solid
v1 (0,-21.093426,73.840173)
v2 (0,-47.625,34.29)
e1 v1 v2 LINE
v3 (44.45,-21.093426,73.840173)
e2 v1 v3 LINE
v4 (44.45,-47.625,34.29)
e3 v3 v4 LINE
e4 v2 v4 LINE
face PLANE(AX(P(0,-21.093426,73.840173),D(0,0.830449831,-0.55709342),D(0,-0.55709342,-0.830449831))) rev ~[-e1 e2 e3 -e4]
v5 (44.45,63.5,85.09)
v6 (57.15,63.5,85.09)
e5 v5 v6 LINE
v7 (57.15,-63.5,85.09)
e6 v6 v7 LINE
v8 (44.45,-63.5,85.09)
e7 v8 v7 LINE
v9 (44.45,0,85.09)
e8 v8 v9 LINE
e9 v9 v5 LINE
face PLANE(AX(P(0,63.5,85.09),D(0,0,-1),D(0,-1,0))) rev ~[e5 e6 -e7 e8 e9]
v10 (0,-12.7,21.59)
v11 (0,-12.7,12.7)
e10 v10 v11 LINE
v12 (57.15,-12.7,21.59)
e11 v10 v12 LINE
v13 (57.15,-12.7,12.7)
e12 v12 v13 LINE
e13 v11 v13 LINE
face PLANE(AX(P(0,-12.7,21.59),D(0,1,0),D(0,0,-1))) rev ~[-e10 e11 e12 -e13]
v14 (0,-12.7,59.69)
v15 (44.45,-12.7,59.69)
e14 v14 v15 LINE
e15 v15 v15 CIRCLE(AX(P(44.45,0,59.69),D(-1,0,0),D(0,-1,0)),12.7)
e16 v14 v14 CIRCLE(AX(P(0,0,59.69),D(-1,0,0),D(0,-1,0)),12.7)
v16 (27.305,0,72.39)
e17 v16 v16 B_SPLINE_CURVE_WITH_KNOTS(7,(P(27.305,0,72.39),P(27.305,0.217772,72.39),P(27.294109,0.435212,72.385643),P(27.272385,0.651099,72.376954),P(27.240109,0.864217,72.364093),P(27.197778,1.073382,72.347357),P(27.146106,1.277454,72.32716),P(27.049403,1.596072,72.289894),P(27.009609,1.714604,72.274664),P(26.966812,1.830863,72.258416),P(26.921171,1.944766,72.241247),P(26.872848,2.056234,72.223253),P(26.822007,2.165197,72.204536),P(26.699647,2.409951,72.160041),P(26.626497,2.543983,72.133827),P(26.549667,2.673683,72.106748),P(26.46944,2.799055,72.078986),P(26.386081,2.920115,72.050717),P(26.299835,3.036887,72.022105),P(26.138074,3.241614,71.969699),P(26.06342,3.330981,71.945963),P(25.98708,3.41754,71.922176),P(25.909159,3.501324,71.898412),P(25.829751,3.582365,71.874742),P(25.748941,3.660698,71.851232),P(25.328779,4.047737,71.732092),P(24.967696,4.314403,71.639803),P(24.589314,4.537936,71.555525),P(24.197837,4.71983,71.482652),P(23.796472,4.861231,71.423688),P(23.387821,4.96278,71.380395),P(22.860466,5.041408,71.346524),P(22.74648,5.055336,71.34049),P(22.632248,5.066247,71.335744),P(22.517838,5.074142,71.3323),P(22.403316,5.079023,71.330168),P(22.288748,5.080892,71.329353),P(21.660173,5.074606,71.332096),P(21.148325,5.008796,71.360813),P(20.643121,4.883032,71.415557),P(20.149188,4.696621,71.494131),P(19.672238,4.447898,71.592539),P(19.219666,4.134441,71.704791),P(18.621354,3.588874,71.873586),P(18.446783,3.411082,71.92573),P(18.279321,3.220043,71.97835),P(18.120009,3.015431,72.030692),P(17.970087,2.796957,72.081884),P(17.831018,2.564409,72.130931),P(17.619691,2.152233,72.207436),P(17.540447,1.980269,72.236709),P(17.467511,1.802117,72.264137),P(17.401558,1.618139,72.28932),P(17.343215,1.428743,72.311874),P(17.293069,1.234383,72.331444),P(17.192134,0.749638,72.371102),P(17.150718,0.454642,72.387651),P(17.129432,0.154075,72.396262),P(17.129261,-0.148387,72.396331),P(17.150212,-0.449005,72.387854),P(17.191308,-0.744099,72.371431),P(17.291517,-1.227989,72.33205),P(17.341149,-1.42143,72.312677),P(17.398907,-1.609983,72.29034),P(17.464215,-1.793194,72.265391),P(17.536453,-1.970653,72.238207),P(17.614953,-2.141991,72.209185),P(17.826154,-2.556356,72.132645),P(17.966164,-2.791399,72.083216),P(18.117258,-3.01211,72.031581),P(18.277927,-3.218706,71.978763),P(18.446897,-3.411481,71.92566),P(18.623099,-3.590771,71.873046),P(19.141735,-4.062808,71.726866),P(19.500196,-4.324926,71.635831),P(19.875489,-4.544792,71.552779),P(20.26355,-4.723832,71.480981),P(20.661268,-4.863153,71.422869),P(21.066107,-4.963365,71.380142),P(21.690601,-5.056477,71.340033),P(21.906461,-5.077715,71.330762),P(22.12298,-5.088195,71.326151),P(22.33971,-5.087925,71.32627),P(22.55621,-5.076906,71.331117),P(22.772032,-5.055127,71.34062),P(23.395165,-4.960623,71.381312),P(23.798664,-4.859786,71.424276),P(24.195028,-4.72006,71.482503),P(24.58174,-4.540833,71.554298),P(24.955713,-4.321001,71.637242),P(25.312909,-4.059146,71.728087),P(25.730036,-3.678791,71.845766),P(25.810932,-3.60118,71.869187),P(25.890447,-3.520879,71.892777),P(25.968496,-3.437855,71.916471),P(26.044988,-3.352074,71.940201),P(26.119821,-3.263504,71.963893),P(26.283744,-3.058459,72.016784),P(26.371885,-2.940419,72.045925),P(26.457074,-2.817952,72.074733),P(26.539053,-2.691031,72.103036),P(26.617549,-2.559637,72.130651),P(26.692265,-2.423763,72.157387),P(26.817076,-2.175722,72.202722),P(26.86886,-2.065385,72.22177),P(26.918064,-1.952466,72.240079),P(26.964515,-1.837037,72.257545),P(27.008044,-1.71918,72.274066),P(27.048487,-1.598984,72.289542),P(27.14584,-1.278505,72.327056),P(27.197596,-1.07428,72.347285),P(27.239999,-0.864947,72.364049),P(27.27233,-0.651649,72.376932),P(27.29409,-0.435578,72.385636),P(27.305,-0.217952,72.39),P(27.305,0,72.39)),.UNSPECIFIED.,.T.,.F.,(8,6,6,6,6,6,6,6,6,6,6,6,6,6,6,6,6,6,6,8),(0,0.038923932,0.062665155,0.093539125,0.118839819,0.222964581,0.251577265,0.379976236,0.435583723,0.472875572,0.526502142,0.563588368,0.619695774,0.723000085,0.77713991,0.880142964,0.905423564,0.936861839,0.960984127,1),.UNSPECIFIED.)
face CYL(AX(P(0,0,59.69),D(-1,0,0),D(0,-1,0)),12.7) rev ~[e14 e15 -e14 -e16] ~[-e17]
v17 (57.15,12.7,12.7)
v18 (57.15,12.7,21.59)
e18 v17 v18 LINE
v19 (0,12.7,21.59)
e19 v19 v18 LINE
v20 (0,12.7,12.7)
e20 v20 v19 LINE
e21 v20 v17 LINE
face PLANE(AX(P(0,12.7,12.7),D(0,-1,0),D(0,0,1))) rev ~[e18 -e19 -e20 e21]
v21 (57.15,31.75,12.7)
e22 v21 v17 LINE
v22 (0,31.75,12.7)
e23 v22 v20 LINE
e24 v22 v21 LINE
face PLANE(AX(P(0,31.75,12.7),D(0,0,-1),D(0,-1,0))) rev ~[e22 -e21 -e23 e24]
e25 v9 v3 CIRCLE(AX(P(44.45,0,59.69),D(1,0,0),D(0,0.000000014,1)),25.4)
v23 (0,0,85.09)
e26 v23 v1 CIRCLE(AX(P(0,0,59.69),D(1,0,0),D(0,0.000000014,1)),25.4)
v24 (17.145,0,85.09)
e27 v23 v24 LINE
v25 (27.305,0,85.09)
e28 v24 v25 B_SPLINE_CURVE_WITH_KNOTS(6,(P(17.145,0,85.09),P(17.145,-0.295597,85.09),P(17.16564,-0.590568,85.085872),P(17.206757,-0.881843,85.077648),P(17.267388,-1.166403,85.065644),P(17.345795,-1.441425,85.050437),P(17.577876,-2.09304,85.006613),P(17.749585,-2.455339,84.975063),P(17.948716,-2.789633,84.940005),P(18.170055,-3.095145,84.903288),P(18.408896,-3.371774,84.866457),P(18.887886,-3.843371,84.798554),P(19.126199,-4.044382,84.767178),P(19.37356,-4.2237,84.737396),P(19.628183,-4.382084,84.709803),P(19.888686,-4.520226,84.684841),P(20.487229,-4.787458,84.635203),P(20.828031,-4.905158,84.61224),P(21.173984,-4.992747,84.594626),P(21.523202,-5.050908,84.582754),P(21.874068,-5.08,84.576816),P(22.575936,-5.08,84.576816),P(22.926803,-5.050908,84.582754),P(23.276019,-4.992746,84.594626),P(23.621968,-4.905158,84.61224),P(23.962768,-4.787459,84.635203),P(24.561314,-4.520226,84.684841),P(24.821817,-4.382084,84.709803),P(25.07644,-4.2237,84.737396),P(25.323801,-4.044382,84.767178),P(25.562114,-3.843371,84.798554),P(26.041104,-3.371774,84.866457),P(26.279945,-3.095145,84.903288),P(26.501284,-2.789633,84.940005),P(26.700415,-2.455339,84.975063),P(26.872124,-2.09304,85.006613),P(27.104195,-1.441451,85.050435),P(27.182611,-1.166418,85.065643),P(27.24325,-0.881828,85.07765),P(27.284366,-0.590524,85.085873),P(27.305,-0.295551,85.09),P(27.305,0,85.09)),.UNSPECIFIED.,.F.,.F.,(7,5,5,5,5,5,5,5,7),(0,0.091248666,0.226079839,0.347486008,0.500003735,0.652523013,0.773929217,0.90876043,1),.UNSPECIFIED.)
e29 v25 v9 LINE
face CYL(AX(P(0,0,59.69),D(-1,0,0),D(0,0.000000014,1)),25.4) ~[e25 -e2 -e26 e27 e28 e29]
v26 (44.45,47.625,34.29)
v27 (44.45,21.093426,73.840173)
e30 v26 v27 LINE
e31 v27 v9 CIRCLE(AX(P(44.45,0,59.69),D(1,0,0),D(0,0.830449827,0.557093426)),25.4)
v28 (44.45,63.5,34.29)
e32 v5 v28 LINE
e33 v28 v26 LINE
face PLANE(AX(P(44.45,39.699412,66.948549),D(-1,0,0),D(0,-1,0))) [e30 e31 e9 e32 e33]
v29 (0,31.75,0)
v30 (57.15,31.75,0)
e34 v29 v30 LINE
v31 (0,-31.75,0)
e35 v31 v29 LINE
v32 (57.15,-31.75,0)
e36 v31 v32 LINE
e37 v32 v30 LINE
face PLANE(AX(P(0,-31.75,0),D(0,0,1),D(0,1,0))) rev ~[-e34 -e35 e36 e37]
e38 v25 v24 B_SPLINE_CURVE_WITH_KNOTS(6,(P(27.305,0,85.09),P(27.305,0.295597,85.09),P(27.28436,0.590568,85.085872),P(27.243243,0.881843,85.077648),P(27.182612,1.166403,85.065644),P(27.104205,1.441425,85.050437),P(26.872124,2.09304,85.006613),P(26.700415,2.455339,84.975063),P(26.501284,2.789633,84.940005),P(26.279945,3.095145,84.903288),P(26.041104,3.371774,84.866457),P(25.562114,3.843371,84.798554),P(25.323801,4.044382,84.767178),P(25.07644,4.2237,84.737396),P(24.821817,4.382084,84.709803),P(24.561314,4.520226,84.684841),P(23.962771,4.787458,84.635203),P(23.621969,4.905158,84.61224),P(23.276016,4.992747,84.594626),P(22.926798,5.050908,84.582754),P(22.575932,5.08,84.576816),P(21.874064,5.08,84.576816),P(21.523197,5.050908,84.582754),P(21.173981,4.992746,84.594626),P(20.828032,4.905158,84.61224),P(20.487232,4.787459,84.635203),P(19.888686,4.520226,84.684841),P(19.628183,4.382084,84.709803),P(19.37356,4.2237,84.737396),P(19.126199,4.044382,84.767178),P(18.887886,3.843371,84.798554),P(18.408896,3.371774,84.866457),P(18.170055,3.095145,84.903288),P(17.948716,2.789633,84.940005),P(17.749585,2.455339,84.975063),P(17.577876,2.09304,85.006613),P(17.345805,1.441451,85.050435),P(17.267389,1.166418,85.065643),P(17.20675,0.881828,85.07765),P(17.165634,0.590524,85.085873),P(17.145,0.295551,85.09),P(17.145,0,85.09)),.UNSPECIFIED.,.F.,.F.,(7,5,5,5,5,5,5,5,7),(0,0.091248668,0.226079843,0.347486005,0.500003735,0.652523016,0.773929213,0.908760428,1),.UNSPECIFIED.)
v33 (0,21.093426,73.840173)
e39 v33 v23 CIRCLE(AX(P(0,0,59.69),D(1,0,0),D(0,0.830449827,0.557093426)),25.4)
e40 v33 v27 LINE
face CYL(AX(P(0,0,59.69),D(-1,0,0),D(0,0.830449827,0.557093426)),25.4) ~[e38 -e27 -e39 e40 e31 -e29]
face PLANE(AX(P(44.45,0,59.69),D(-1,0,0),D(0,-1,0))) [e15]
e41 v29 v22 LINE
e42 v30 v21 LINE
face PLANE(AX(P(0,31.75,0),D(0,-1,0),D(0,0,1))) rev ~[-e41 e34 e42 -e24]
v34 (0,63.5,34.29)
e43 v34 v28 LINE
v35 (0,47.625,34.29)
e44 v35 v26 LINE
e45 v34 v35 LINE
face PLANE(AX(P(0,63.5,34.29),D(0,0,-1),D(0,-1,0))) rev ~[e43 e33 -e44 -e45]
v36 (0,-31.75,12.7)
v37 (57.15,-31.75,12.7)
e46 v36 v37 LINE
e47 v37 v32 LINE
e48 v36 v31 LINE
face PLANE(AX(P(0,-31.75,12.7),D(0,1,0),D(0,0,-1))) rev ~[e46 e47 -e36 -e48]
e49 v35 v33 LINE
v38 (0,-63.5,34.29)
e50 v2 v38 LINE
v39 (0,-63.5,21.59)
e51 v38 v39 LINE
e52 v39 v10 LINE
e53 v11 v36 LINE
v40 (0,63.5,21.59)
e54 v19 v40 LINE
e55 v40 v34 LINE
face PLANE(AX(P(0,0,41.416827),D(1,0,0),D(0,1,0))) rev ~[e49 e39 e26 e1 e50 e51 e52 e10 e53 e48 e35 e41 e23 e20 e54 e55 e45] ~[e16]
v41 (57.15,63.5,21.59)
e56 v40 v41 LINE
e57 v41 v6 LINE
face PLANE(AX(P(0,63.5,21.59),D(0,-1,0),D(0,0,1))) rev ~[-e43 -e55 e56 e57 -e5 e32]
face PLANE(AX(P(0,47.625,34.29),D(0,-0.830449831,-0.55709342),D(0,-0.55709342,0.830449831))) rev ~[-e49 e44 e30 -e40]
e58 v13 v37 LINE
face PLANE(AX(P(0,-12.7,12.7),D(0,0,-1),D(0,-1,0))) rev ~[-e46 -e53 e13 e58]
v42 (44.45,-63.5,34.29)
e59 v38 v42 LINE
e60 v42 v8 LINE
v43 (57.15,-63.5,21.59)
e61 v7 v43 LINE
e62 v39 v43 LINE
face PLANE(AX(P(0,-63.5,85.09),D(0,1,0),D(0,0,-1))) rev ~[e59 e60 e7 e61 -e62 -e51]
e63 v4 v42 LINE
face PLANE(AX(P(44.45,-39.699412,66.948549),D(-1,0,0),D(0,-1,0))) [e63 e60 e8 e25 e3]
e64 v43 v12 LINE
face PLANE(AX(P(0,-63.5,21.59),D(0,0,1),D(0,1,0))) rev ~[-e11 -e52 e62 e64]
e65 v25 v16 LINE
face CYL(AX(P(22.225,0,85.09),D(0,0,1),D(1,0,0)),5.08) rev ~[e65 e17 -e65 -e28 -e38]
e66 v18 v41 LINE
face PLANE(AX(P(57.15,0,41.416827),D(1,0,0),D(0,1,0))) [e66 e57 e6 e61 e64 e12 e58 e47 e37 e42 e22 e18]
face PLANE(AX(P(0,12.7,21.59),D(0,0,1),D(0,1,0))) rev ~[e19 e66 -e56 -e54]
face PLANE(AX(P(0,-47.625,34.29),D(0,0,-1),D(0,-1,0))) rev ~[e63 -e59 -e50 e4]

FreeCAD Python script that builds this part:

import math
import FreeCAD as App
import Part
import Sketcher
from FreeCAD import Vector
Q = App.Units.Quantity


def add_polygon(sketch, points):
    """Adds a closed chain of lines whose ends are joined by coincident constraints."""
    first, n = sketch.GeometryCount, len(points)
    for a, b in zip(points, points[1:] + points[:1]):
        sketch.addGeometry(Part.LineSegment(App.Vector(*a, 0), App.Vector(*b, 0)), False)
    for i in range(n):
        sketch.addConstraint(Sketcher.Constraint("Coincident", first + i, 2, first + (i + 1) % n, 1))

doc = App.newDocument("Part")
body = doc.addObject("PartDesign::Body", "Body")

# Sketch on YZ plane
sketch1 = body.newObject("Sketcher::SketchObject", "Sketch")
sketch1.AttachmentSupport = (doc.getObject("YZ_Plane"), [""])
sketch1.MapMode = "FlatFace"
add_polygon(sketch1, [(-31.75, 12.7), (-31.75, 0), (31.75, 0), (31.75, 12.7), (12.7, 12.7), (12.7, 21.59), (63.5, 21.59), (63.5, 85.09), (-63.5, 85.09), (-63.5, 21.59), (-12.7, 21.59), (-12.7, 12.7)])  # lines 0-11
sketch1.addConstraint([
    Sketcher.Constraint("Vertical", 0),
    Sketcher.Constraint("Horizontal", 1),
    Sketcher.Constraint("Vertical", 2),
    Sketcher.Constraint("Horizontal", 3),
    Sketcher.Constraint("Vertical", 4),
    Sketcher.Constraint("Horizontal", 5),
    Sketcher.Constraint("Vertical", 6),
    Sketcher.Constraint("Horizontal", 7),
    Sketcher.Constraint("Vertical", 8),
    Sketcher.Constraint("Horizontal", 9),
    Sketcher.Constraint("Vertical", 10),
    Sketcher.Constraint("Horizontal", 11),
    Sketcher.Constraint("Symmetric", 0, 2, 1, 2, -1, 1),
    Sketcher.Constraint("Symmetric", 5, 2, 8, 2, -2),
    Sketcher.Constraint("Symmetric", 3, 2, 10, 2, -2),
    Sketcher.Constraint("Equal", 1, 6),
    Sketcher.Constraint("DistanceX", 5, 1, 5, 2, Q("2 in")),
    Sketcher.Constraint("DistanceX", 7, 2, 7, 1, Q("5 in")),
    Sketcher.Constraint("DistanceX", 1, 1, 1, 2, Q("2.5 in")),
    Sketcher.Constraint("DistanceY", 0, 2, 0, 1, Q("0.5 in")),
    Sketcher.Constraint("DistanceY", 4, 1, 4, 2, Q("0.35 in")),
])
pad1 = body.newObject("PartDesign::Pad", "Pad")
pad1.Profile = sketch1
pad1.Length = Q("2.25 in")

# Sketch on YZ plane
sketch2 = body.newObject("Sketcher::SketchObject", "Sketch001")
sketch2.AttachmentSupport = (doc.getObject("YZ_Plane"), [""])
sketch2.MapMode = "FlatFace"
sketch2.addGeometry([
    Part.LineSegment(Vector(63.5, 85.09, 0), Vector(63.5, 34.29, 0)),  # 0
    Part.LineSegment(Vector(63.5, 34.29, 0), Vector(47.625, 34.29, 0)),  # 1
    Part.LineSegment(Vector(47.625, 34.29, 0), Vector(21.093426, 73.840173, 0)),  # 2
    Part.ArcOfCircle(Part.Circle(Vector(0, 59.69, 0), Vector(0, 0, 1), 25.4), math.radians(33.855026), math.radians(90.000001)),  # 3
    Part.LineSegment(Vector(0, 85.09, 0), Vector(63.5, 85.09, 0)),  # 4
    Part.LineSegment(Vector(-63.5, 85.09, 0), Vector(0, 85.09, 0)),  # 5
    Part.ArcOfCircle(Part.Circle(Vector(0, 59.69, 0), Vector(0, 0, 1), 25.4), math.radians(89.999999), math.radians(146.144974)),  # 6
    Part.LineSegment(Vector(-21.093426, 73.840173, 0), Vector(-47.625, 34.29, 0)),  # 7
    Part.LineSegment(Vector(-47.625, 34.29, 0), Vector(-63.5, 34.29, 0)),  # 8
    Part.LineSegment(Vector(-63.5, 34.29, 0), Vector(-63.5, 85.09, 0)),  # 9
    Part.Circle(Vector(0, 59.69, 0), Vector(0, 0, 1), 12.7),  # 10
], False)
sketch2.addConstraint([
    Sketcher.Constraint("Coincident", 0, 2, 1, 1),
    Sketcher.Constraint("Coincident", 1, 2, 2, 1),
    Sketcher.Constraint("Tangent", 2, 2, 3, 1),
    Sketcher.Constraint("Tangent", 3, 2, 4, 1),
    Sketcher.Constraint("Coincident", 4, 2, 0, 1),
    Sketcher.Constraint("Tangent", 5, 2, 6, 1),
    Sketcher.Constraint("Tangent", 6, 2, 7, 1),
    Sketcher.Constraint("Coincident", 7, 2, 8, 1),
    Sketcher.Constraint("Coincident", 8, 2, 9, 1),
    Sketcher.Constraint("Coincident", 9, 2, 5, 1),
    Sketcher.Constraint("Vertical", 0),
    Sketcher.Constraint("Horizontal", 1),
    Sketcher.Constraint("Horizontal", 4),
    Sketcher.Constraint("Horizontal", 5),
    Sketcher.Constraint("Horizontal", 8),
    Sketcher.Constraint("Vertical", 9),
    Sketcher.Constraint("Coincident", 6, 3, 3, 3),
    Sketcher.Constraint("Coincident", 10, 3, 3, 3),
    Sketcher.Constraint("Equal", 3, 6),
    Sketcher.Constraint("Symmetric", 2, 2, 6, 2, -2),
    Sketcher.Constraint("Symmetric", 0, 2, 8, 2, -2),
    Sketcher.Constraint("Diameter", 10, Q("1 in")),
    Sketcher.Constraint("Radius", 3, Q("1 in")),
    Sketcher.Constraint("DistanceY", 0, 2, 0, 1, Q("2 in")),
    Sketcher.Constraint("DistanceX", 4, 1, 4, 2, Q("2.5 in")),
    Sketcher.Constraint("DistanceX", 1, 2, 1, 1, Q("0.625 in")),
    Sketcher.Constraint("DistanceY", -1, 1, 3, 3, Q("2.35 in")),
])
pocket1 = body.newObject("PartDesign::Pocket", "Pocket")
pocket1.Profile = sketch2
pocket1.Length = Q("1.75 in")
pocket1.Reversed = True

# Sketch on XY plane
sketch3 = body.newObject("Sketcher::SketchObject", "Sketch002")
sketch3.AttachmentSupport = (doc.getObject("XY_Plane"), [""])
sketch3.MapMode = "FlatFace"
sketch3.AttachmentOffset = App.Placement(Vector(0, 0, 3.35 * 25.4), App.Rotation())
sketch3.addGeometry(Part.Circle(Vector(22.225, 0, 0), Vector(0, 0, 1), 5.08), False)
sketch3.addConstraint([
    Sketcher.Constraint("PointOnObject", 0, 3, -1),
    Sketcher.Constraint("Diameter", 0, Q("0.4 in")),
    Sketcher.Constraint("DistanceX", -1, 1, 0, 3, Q("0.875 in")),
])
pocket2 = body.newObject("PartDesign::Pocket", "Pocket001")
pocket2.Profile = sketch3
pocket2.Length = Q("0.6 in")

doc.recompute()
